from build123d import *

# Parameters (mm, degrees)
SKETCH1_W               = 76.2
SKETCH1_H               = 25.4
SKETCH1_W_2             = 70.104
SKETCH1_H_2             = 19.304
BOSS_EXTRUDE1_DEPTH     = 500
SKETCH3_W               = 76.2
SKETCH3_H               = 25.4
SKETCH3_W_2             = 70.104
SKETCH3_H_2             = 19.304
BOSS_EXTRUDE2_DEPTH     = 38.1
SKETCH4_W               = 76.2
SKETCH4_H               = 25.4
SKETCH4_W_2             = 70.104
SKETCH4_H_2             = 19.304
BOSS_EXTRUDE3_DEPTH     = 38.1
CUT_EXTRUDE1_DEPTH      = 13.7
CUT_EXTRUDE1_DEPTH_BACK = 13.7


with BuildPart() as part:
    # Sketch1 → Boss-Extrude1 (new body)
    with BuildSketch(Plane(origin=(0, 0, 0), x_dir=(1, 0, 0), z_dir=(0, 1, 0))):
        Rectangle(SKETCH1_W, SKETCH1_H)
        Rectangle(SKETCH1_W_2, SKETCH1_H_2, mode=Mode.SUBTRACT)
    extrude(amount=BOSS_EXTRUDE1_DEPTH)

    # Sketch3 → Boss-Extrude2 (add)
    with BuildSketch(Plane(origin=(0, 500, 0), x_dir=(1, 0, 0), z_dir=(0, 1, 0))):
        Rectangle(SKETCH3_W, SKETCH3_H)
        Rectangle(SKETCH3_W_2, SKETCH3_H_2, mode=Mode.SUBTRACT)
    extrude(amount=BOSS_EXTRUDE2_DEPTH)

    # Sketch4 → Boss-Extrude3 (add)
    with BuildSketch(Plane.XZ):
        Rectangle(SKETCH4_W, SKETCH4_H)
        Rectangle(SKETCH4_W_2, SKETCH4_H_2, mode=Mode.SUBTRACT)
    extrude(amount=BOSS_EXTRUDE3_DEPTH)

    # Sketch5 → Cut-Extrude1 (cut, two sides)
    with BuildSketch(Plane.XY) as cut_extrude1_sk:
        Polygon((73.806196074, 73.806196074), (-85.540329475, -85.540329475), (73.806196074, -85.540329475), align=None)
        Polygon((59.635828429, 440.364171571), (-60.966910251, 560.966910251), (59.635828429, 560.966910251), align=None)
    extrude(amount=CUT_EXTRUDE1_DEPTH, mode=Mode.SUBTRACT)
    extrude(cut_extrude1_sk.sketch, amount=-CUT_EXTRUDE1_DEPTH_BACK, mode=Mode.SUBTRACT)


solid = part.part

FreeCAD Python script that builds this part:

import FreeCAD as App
import Part
import Sketcher

V = App.Vector
Q = App.Units.Quantity


def add_polygon(sketch, points):
    """Adds a closed chain of lines whose ends are joined by coincident constraints."""
    first, n = sketch.GeometryCount, len(points)
    for a, b in zip(points, points[1:] + points[:1]):
        sketch.addGeometry(Part.LineSegment(App.Vector(*a, 0), App.Vector(*b, 0)), False)
    for i in range(n):
        sketch.addConstraint(Sketcher.Constraint("Coincident", first + i, 2, first + (i + 1) % n, 1))

doc = App.newDocument("Part")
body = doc.addObject("PartDesign::Body", "Body")

# Sketch on XZ plane
sketch1 = body.newObject("Sketcher::SketchObject", "Sketch")
sketch1.AttachmentSupport = (doc.getObject("XZ_Plane"), [""])
sketch1.MapMode = "FlatFace"
add_polygon(sketch1, [(-38, -13), (-38, 13), (38, 13), (38, -13)])  # lines 0-3
add_polygon(sketch1, [(35, 10), (-35, 10), (-35, -10), (35, -10)])  # lines 4-7
sketch1.addConstraint([
    Sketcher.Constraint("Vertical", 0),
    Sketcher.Constraint("Horizontal", 1),
    Sketcher.Constraint("Vertical", 2),
    Sketcher.Constraint("Horizontal", 3),
    Sketcher.Constraint("Horizontal", 4),
    Sketcher.Constraint("Vertical", 5),
    Sketcher.Constraint("Horizontal", 6),
    Sketcher.Constraint("Vertical", 7),
    Sketcher.Constraint("Symmetric", 0, 2, 2, 2, -1, 1),
    Sketcher.Constraint("Symmetric", 4, 2, 6, 2, -1, 1),
    Sketcher.Constraint("DistanceX", 1, 1, 1, 2, Q("3 in")),
    Sketcher.Constraint("DistanceY", 0, 1, 0, 2, Q("1 in")),
    Sketcher.Constraint("DistanceX", 4, 2, 4, 1, Q("2.76 in")),
    Sketcher.Constraint("DistanceY", 5, 2, 5, 1, Q("0.76 in")),
])
pad1 = body.newObject("PartDesign::Pad", "Pad")
pad1.Profile = sketch1
pad1.Length = 500
pad1.Reversed = True

# Sketch on XZ plane
sketch2 = body.newObject("Sketcher::SketchObject", "Sketch001")
sketch2.AttachmentSupport = (doc.getObject("XZ_Plane"), [""])
sketch2.MapMode = "FlatFace"
sketch2.AttachmentOffset = App.Placement(V(0, 0, -500), App.Rotation())
add_polygon(sketch2, [(-38, -13), (-38, 13), (38, 13), (38, -13)])  # lines 0-3
add_polygon(sketch2, [(35, 10), (-35, 10), (-35, -10), (35, -10)])  # lines 4-7
sketch2.addConstraint([
    Sketcher.Constraint("Vertical", 0),
    Sketcher.Constraint("Horizontal", 1),
    Sketcher.Constraint("Vertical", 2),
    Sketcher.Constraint("Horizontal", 3),
    Sketcher.Constraint("Horizontal", 4),
    Sketcher.Constraint("Vertical", 5),
    Sketcher.Constraint("Horizontal", 6),
    Sketcher.Constraint("Vertical", 7),
    Sketcher.Constraint("Symmetric", 0, 2, 2, 2, -1, 1),
    Sketcher.Constraint("Symmetric", 4, 2, 6, 2, -1, 1),
    Sketcher.Constraint("DistanceX", 1, 1, 1, 2, Q("3 in")),
    Sketcher.Constraint("DistanceY", 0, 1, 0, 2, Q("1 in")),
    Sketcher.Constraint("DistanceX", 4, 2, 4, 1, Q("2.76 in")),
    Sketcher.Constraint("DistanceY", 5, 2, 5, 1, Q("0.76 in")),
])
pad2 = body.newObject("PartDesign::Pad", "Pad001")
pad2.Profile = sketch2
pad2.Length = Q("1.5 in")
pad2.Reversed = True

# Sketch on XZ plane
sketch3 = body.newObject("Sketcher::SketchObject", "Sketch002")
sketch3.AttachmentSupport = (doc.getObject("XZ_Plane"), [""])
sketch3.MapMode = "FlatFace"
add_polygon(sketch3, [(-38, 13), (-38, -13), (38, -13), (38, 13)])  # lines 0-3
add_polygon(sketch3, [(35, -10), (-35, -10), (-35, 10), (35, 10)])  # lines 4-7
sketch3.addConstraint([
    Sketcher.Constraint("Vertical", 0),
    Sketcher.Constraint("Horizontal", 1),
    Sketcher.Constraint("Vertical", 2),
    Sketcher.Constraint("Horizontal", 3),
    Sketcher.Constraint("Horizontal", 4),
    Sketcher.Constraint("Vertical", 5),
    Sketcher.Constraint("Horizontal", 6),
    Sketcher.Constraint("Vertical", 7),
    Sketcher.Constraint("Symmetric", 0, 2, 2, 2, -1, 1),
    Sketcher.Constraint("Symmetric", 4, 2, 6, 2, -1, 1),
    Sketcher.Constraint("DistanceX", 1, 1, 1, 2, Q("3 in")),
    Sketcher.Constraint("DistanceY", 0, 2, 0, 1, Q("1 in")),
    Sketcher.Constraint("DistanceX", 4, 2, 4, 1, Q("2.76 in")),
    Sketcher.Constraint("DistanceY", 5, 1, 5, 2, Q("0.76 in")),
])
pad3 = body.newObject("PartDesign::Pad", "Pad002")
pad3.Profile = sketch3
pad3.Length = Q("1.5 in")

# Sketch on XY plane
sketch4 = body.newObject("Sketcher::SketchObject", "Sketch003")
sketch4.AttachmentSupport = (doc.getObject("XY_Plane"), [""])
sketch4.MapMode = "FlatFace"
add_polygon(sketch4, [(74, 74), (-86, -86), (74, -86)])  # lines 0-2
add_polygon(sketch4, [(-61, 561), (60, 440), (60, 561)])  # lines 3-5
sketch4.addConstraint([
    Sketcher.Constraint("Horizontal", 1),
    Sketcher.Constraint("Vertical", 2),
    Sketcher.Constraint("Vertical", 4),
    Sketcher.Constraint("Horizontal", 5),
    Sketcher.Constraint("Perpendicular", 0, 3),
    Sketcher.Constraint("Equal", 1, 2),
    Sketcher.Constraint("DistanceX", 5, 2, 5, 1, Q("120.602739 mm")),
    Sketcher.Constraint("DistanceY", 1, 2, 3, 2, Q("525.904501 mm")),
    Sketcher.Constraint("DistanceX", 1, 1, 1, 2, Q("159.346526 mm")),
    Sketcher.Constraint("DistanceX", 0, 2, -1, 1, Q("85.540329 mm")),
    Sketcher.Constraint("DistanceY", 0, 2, -1, 1, Q("85.540329 mm")),
    Sketcher.Constraint("DistanceX", -1, 1, 3, 2, Q("59.635828 mm")),
])
pocket1 = body.newObject("PartDesign::Pocket", "Pocket")
pocket1.Profile = sketch4
pocket1.Type = "ThroughAll"
pocket1.Midplane = True

doc.recompute()
